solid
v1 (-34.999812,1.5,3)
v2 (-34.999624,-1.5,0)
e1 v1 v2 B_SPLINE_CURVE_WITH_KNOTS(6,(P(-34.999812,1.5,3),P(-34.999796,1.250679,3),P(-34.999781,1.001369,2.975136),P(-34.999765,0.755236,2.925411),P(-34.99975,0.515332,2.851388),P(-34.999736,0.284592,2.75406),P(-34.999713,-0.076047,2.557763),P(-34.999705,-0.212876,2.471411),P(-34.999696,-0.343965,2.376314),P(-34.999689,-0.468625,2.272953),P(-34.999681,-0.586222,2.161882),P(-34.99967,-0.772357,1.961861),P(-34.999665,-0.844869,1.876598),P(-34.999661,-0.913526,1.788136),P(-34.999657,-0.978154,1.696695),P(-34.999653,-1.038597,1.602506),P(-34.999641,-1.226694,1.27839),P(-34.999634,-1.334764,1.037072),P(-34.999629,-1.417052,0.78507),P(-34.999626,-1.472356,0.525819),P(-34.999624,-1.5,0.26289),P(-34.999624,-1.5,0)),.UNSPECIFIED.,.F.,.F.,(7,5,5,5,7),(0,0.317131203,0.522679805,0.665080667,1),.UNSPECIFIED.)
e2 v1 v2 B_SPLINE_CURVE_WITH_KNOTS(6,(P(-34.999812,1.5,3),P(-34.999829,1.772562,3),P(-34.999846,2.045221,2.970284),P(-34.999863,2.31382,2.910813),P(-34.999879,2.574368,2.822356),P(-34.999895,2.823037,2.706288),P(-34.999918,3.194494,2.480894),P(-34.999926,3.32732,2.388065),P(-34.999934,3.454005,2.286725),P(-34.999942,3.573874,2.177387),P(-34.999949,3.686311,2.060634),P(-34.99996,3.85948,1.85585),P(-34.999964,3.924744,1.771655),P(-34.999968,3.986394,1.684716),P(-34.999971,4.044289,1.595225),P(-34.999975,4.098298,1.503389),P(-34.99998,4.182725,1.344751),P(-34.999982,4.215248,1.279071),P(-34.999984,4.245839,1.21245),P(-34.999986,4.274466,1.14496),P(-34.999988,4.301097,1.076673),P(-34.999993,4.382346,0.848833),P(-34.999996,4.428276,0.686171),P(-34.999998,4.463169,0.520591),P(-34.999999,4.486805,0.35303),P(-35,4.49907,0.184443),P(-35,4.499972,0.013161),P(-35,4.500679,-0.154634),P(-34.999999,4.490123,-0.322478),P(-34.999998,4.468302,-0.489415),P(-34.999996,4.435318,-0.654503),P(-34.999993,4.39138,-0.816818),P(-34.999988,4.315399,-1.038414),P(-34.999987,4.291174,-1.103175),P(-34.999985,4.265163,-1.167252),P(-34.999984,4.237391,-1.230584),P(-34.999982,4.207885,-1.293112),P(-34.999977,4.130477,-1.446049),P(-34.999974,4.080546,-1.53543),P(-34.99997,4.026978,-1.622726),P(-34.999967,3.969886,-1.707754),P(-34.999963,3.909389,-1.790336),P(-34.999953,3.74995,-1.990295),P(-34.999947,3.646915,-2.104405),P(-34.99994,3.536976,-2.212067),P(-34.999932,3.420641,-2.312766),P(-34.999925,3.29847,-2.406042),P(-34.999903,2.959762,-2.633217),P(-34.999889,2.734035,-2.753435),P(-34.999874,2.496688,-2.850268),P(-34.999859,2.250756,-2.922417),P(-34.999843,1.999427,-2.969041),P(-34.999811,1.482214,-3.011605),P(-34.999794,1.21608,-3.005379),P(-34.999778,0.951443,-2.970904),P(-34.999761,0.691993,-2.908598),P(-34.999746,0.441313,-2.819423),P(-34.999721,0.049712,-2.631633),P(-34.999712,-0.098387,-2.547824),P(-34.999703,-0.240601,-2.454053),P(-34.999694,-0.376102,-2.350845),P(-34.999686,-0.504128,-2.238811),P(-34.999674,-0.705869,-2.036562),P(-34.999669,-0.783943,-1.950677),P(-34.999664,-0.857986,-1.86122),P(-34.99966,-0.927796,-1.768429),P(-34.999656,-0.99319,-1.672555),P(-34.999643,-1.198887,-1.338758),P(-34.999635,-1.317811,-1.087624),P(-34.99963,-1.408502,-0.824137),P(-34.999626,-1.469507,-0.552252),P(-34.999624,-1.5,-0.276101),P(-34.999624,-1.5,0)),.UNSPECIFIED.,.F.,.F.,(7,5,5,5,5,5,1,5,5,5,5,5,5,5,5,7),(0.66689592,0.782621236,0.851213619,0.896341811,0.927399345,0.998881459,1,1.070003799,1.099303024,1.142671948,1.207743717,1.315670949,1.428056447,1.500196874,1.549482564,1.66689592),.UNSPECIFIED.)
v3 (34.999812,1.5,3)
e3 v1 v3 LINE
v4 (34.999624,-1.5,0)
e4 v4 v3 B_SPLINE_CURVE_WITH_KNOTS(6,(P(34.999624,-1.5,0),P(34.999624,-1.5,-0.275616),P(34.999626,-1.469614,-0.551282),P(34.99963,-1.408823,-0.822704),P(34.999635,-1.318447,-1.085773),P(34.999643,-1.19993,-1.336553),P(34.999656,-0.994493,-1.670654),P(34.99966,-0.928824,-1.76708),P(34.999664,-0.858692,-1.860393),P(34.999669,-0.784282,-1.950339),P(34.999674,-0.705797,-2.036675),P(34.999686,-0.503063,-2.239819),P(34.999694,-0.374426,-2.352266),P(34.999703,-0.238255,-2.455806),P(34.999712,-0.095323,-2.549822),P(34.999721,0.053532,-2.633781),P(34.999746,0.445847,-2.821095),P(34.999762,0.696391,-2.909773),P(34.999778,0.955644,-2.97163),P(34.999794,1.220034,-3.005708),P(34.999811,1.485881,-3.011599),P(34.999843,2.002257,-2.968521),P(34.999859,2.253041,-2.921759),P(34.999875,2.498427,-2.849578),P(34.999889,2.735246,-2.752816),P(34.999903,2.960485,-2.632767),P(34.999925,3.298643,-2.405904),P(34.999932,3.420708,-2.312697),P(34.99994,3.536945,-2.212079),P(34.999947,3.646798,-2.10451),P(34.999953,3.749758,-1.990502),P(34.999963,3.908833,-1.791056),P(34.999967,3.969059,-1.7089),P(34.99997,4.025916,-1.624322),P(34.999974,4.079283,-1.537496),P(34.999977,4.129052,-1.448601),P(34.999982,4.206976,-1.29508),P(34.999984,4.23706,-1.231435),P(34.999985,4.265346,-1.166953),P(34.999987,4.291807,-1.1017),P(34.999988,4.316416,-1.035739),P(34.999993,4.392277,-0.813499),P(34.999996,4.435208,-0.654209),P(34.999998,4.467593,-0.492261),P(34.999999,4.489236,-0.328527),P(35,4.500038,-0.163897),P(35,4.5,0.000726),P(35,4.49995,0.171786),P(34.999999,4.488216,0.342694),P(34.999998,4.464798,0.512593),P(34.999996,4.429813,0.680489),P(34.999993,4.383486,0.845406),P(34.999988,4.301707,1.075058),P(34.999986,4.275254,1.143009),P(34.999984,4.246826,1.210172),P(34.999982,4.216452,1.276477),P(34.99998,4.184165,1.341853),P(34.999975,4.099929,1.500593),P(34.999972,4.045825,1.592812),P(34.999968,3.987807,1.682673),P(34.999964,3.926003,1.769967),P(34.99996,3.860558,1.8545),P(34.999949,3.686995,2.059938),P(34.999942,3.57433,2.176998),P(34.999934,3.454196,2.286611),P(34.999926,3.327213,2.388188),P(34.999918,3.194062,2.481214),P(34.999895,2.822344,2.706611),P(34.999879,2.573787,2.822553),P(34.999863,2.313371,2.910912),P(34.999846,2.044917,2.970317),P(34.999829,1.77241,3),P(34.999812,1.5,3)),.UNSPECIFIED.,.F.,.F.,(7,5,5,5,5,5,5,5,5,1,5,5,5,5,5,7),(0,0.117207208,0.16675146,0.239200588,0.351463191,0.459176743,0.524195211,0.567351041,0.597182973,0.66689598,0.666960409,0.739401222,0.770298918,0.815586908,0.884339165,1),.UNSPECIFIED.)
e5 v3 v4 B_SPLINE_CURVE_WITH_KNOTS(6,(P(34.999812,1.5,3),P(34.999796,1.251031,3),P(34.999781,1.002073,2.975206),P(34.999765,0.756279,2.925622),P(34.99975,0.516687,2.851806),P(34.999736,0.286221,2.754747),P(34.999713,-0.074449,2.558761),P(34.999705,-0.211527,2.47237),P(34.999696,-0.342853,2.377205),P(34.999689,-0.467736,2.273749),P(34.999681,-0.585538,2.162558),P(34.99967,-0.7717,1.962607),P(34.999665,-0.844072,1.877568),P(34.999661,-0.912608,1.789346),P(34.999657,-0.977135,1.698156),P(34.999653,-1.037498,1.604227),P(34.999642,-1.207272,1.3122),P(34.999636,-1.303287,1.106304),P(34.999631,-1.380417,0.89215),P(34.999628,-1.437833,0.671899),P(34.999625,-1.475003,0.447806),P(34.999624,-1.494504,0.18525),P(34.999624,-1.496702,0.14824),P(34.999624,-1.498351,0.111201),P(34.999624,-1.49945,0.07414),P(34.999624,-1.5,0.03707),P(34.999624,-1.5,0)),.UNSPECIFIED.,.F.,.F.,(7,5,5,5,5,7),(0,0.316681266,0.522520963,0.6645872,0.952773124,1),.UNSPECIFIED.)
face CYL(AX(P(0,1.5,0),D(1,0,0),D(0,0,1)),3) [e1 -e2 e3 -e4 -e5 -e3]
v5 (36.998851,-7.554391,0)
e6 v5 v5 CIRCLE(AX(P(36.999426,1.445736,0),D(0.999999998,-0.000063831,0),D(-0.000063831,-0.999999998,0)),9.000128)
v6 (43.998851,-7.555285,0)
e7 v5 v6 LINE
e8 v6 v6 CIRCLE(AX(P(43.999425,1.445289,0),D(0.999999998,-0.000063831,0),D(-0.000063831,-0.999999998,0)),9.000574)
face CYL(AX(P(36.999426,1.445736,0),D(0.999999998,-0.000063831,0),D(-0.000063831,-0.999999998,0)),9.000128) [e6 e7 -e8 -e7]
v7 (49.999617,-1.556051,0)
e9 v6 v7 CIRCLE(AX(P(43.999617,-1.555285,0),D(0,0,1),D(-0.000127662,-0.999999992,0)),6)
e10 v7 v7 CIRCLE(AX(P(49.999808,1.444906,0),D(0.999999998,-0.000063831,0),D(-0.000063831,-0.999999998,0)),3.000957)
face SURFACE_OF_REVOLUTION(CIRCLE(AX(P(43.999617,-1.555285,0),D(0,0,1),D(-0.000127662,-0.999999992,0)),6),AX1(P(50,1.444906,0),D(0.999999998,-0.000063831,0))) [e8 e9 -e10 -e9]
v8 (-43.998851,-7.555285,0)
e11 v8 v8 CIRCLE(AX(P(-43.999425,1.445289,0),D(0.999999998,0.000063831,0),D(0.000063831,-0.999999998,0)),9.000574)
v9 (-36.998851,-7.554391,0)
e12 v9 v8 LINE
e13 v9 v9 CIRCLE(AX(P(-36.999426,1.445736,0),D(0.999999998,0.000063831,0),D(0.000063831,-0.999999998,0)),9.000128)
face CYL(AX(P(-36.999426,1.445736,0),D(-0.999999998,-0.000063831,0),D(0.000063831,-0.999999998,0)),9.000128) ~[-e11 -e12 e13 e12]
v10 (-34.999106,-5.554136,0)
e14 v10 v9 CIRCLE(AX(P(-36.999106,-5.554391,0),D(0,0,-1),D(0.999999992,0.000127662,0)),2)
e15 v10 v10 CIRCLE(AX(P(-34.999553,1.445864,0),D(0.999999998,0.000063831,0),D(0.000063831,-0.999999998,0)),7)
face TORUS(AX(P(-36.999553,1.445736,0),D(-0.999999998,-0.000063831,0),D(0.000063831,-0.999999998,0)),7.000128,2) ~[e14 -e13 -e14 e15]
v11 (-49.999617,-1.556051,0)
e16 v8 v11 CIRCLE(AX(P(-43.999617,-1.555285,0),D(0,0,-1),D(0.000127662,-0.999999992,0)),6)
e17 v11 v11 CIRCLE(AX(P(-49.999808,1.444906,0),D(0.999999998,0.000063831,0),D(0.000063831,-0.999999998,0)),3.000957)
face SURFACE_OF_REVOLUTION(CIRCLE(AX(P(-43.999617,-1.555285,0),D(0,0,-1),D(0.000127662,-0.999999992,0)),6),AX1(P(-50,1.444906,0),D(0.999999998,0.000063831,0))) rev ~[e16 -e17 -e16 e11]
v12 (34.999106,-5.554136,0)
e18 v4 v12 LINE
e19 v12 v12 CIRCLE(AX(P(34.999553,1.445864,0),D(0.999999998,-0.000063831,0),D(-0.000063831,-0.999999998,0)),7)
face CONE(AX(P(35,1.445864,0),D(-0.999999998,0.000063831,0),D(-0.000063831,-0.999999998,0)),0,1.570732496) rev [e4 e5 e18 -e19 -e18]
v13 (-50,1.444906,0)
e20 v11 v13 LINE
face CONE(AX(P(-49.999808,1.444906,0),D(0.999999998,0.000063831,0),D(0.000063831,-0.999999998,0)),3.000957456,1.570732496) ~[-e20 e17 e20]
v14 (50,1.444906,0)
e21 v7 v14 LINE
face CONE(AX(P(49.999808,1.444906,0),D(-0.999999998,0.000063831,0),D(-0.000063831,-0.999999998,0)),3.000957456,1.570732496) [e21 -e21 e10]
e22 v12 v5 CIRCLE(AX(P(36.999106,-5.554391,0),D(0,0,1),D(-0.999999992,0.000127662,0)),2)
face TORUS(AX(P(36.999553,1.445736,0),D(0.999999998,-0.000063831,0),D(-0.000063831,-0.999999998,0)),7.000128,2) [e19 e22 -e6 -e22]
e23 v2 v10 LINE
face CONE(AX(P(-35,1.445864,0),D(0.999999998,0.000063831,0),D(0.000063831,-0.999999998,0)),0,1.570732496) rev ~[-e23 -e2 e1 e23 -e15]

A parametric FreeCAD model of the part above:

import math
import FreeCAD as App
import Part
import Sketcher
from FreeCAD import Vector


def add_polygon(sketch, points):
    """Adds a closed chain of lines whose ends are joined by coincident constraints."""
    first, n = sketch.GeometryCount, len(points)
    for a, b in zip(points, points[1:] + points[:1]):
        sketch.addGeometry(Part.LineSegment(App.Vector(*a, 0), App.Vector(*b, 0)), False)
    for i in range(n):
        sketch.addConstraint(Sketcher.Constraint("Coincident", first + i, 2, first + (i + 1) % n, 1))

doc = App.newDocument("Part")
body = doc.addObject("PartDesign::Body", "Body")

sketch1 = body.newObject("Sketcher::SketchObject", "Sketch")
sketch1.AttachmentSupport = (doc.getObject("XY_Plane"), [""])
sketch1.MapMode = "FlatFace"
add_polygon(sketch1, [(-35, 1.5), (-35, -1.5), (35, -1.5), (35, 1.5)])
sketch1.addGeometry(Part.LineSegment(Vector(-35, 1.5, 0), Vector(35, 1.5, 0)), True)
sketch1.addConstraint(Sketcher.Constraint("Vertical", 0))
sketch1.addConstraint(Sketcher.Constraint("Horizontal", 1))
sketch1.addConstraint(Sketcher.Constraint("Vertical", 2))
sketch1.addConstraint(Sketcher.Constraint("Horizontal", 3))
sketch1.addConstraint(Sketcher.Constraint("Horizontal", 4))
sketch1.addConstraint(Sketcher.Constraint("Coincident", 4, 1, 3, 2))
sketch1.addConstraint(Sketcher.Constraint("Symmetric", 0, 2, 2, 2, -1, 1))
sketch1.addConstraint(Sketcher.Constraint("Vertical", 1, 2, 4, 2))
sketch1.addConstraint(Sketcher.Constraint("DistanceX", 1, 1, 1, 2, 70.0))
sketch1.addConstraint(Sketcher.Constraint("DistanceY", 0, 2, 0, 1, 3.0))
revolution = body.newObject("PartDesign::Revolution", "Revolution")
revolution.Profile = sketch1
revolution.ReferenceAxis = (sketch1, ["Axis0"])
revolution.Angle = 360

sketch2 = body.newObject("Sketcher::SketchObject", "Sketch001")
sketch2.AttachmentSupport = (doc.getObject("XY_Plane"), [""])
sketch2.MapMode = "FlatFace"
sketch2.addGeometry(Part.LineSegment(Vector(-44, 1.4, 0), Vector(-37, 1.4, 0)), False)
sketch2.addGeometry(Part.LineSegment(Vector(-37, 1.4, 0), Vector(-35, 1.4, 0)), False)
sketch2.addGeometry(Part.LineSegment(Vector(-35, 1.4, 0), Vector(-35, 8.4, 0)), False)
sketch2.addGeometry(Part.ArcOfCircle(Part.Circle(Vector(-37, 8.4, 0), Vector(0, 0, 1), 2), math.radians(0), math.radians(90)), False)
sketch2.addGeometry(Part.LineSegment(Vector(-37, 10.4, 0), Vector(-44, 10.4, 0)), False)
sketch2.addGeometry(Part.ArcOfCircle(Part.Circle(Vector(-44, 4.4, 0), Vector(0, 0, 1), 6), math.radians(90), math.radians(180)), False)
sketch2.addGeometry(Part.LineSegment(Vector(-50, 4.4, 0), Vector(-50, 1.4, 0)), False)
sketch2.addGeometry(Part.LineSegment(Vector(-50, 1.4, 0), Vector(-44, 1.4, 0)), False)
sketch2.addGeometry(Part.LineSegment(Vector(-50, 1.4, 0), Vector(-35, 1.4, 0)), True)
sketch2.addConstraint(Sketcher.Constraint("Coincident", 0, 2, 1, 1))
sketch2.addConstraint(Sketcher.Constraint("Coincident", 1, 2, 2, 1))
sketch2.addConstraint(Sketcher.Constraint("Tangent", 2, 2, 3, 1))
sketch2.addConstraint(Sketcher.Constraint("Tangent", 3, 2, 4, 1))
sketch2.addConstraint(Sketcher.Constraint("Tangent", 4, 2, 5, 1))
sketch2.addConstraint(Sketcher.Constraint("Tangent", 5, 2, 6, 1))
sketch2.addConstraint(Sketcher.Constraint("Coincident", 6, 2, 7, 1))
sketch2.addConstraint(Sketcher.Constraint("Coincident", 7, 2, 0, 1))
sketch2.addConstraint(Sketcher.Constraint("Vertical", 2))
sketch2.addConstraint(Sketcher.Constraint("Horizontal", 4))
sketch2.addConstraint(Sketcher.Constraint("Vertical", 6))
sketch2.addConstraint(Sketcher.Constraint("Coincident", 8, 1, 6, 2))
sketch2.addConstraint(Sketcher.Constraint("Parallel", 0, 1))
sketch2.addConstraint(Sketcher.Constraint("Parallel", 1, 7))
sketch2.addConstraint(Sketcher.Constraint("Parallel", 7, 8))
sketch2.addConstraint(Sketcher.Constraint("Vertical", 3, 3, 0, 2))
sketch2.addConstraint(Sketcher.Constraint("Vertical", 4, 2, 7, 2))
sketch2.addConstraint(Sketcher.Constraint("Equal", 4, 2))
sketch2.addConstraint(Sketcher.Constraint("Radius", 3, 2.0))
sketch2.addConstraint(Sketcher.Constraint("Radius", 5, 6.0))
sketch2.addConstraint(Sketcher.Constraint("DistanceX", 4, 2, 4, 1, 7.0))
sketch2.addConstraint(Sketcher.Constraint("DistanceX", 3, 3, -1, 1, 37.0))
sketch2.addConstraint(Sketcher.Constraint("DistanceY", 6, 2, 6, 1, 3.000957))
sketch2.addConstraint(Sketcher.Constraint("DistanceY", -1, 1, 7, 2, 1.445289))
sketch2.addConstraint(Sketcher.Constraint("Distance", 8, 15.000447))
revolution2 = body.newObject("PartDesign::Revolution", "Revolution001")
revolution2.Profile = sketch2
revolution2.ReferenceAxis = (sketch2, ["Axis0"])
revolution2.Angle = 360
doc.recompute()

mirrored = body.newObject("PartDesign::Mirrored", "Mirrored")
mirrored.Originals = [revolution2]
mirrored.MirrorPlane = (doc.getObject("YZ_Plane"), [""])
body.Tip = mirrored

doc.recompute()
